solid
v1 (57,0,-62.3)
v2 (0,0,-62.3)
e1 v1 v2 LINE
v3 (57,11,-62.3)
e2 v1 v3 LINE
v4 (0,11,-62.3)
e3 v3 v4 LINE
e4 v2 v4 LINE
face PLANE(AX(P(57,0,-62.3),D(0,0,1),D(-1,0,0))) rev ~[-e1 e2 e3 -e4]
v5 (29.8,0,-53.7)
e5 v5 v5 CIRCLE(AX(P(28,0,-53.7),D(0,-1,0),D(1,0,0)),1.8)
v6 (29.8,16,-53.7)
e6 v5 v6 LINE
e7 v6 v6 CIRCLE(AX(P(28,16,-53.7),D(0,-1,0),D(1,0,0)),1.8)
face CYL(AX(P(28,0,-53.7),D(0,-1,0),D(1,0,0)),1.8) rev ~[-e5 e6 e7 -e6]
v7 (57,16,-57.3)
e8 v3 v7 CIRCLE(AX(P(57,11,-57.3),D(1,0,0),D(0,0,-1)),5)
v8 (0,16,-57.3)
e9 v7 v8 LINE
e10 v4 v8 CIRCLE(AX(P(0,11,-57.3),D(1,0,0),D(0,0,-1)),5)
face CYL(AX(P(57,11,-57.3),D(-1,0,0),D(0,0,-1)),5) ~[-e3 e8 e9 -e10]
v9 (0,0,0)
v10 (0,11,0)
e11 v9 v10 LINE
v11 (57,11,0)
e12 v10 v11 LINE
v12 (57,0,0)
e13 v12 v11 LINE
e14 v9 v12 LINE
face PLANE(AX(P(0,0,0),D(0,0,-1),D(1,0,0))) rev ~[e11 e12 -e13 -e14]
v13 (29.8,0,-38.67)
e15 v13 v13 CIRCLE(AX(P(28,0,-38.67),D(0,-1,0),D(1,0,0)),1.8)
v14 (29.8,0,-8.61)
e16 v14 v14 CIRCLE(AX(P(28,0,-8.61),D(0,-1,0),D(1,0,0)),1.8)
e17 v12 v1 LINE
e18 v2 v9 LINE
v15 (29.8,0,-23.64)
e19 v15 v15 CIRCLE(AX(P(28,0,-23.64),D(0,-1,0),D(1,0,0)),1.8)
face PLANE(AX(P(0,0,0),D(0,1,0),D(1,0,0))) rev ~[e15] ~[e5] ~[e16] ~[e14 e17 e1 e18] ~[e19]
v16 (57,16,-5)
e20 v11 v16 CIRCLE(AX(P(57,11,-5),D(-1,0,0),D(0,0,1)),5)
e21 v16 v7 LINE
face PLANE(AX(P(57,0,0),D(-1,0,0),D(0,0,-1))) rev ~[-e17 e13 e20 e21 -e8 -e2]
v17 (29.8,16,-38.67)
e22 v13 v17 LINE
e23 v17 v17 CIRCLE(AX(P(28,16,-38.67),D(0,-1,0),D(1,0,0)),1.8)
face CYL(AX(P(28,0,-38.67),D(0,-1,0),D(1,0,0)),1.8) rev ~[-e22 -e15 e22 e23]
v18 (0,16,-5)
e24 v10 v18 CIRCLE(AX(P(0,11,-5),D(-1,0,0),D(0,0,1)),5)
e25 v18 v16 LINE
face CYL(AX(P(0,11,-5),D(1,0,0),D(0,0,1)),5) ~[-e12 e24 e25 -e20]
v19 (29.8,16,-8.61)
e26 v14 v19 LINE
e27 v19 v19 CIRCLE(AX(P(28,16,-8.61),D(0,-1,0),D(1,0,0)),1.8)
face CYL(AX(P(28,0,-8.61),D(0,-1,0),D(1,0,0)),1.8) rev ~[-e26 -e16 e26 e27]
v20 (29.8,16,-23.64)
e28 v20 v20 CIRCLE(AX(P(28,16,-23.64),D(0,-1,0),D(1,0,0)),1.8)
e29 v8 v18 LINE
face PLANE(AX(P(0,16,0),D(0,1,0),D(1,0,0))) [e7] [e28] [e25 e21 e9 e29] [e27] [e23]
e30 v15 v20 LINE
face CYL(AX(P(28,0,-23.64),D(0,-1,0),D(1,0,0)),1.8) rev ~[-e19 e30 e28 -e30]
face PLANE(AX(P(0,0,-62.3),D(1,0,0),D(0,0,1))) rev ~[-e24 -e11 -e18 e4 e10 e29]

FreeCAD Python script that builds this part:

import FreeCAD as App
import Part
import Sketcher

V = App.Vector
Q = App.Units.Quantity


def edges_at(feature, points):
    """Names of the edges that pass closest to the given points."""
    edges = feature.Shape.Edges
    near = lambda p: min(range(len(edges)), key=lambda i: edges[i].distToShape(Part.Vertex(*p))[0])
    return sorted({f"Edge{near(p) + 1}" for p in points})

doc = App.newDocument("Part")
body = doc.addObject("PartDesign::Body", "Body")

sketch1 = body.newObject("Sketcher::SketchObject", "Sketch")
sketch1.AttachmentSupport = (doc.getObject("XZ_Plane"), [""])
sketch1.MapMode = "FlatFace"
sketch1.addGeometry([
    Part.LineSegment(V(0, -62, 0), V(0, 0, 0)),
    Part.LineSegment(V(0, 0, 0), V(57, 0, 0)),
    Part.LineSegment(V(57, 0, 0), V(57, -62, 0)),
    Part.LineSegment(V(57, -62, 0), V(0, -62, 0)),
], False)
sketch1.addConstraint([
    Sketcher.Constraint("Coincident", 0, 2, 1, 1),
    Sketcher.Constraint("Coincident", 1, 2, 2, 1),
    Sketcher.Constraint("Coincident", 2, 2, 3, 1),
    Sketcher.Constraint("Coincident", 3, 2, 0, 1),
    Sketcher.Constraint("Vertical", 0),
    Sketcher.Constraint("Horizontal", 1),
    Sketcher.Constraint("Vertical", 2),
    Sketcher.Constraint("Horizontal", 3),
    Sketcher.Constraint("Coincident", 0, 2, -1, 1),
    Sketcher.Constraint("DistanceX", 1, 1, 1, 2, Q("57 mm")),
    Sketcher.Constraint("DistanceY", 0, 1, 0, 2, Q("62.3 mm")),
])
pad1 = body.newObject("PartDesign::Pad", "Pad")
pad1.Profile = sketch1
pad1.Length = 16
pad1.Reversed = True
doc.recompute()

fillet = body.newObject("PartDesign::Fillet", "Fillet")
fillet.Base = (pad1, edges_at(pad1, [(28.5, 16, 0), (28.5, 16, -62.3)]))
fillet.Radius = 5

sketch2 = body.newObject("Sketcher::SketchObject", "Sketch001")
sketch2.AttachmentSupport = (doc.getObject("XZ_Plane"), [""])
sketch2.MapMode = "FlatFace"
sketch2.addGeometry([
    Part.Circle(V(28, -53.7, 0), V(0, 0, 1), 1.8),
    Part.Circle(V(28, -38.7, 0), V(0, 0, 1), 1.8),
    Part.Circle(V(28, -23.6, 0), V(0, 0, 1), 1.8),
    Part.Circle(V(28, -8.6, 0), V(0, 0, 1), 1.8),
], False)
sketch2.addConstraint([
    Sketcher.Constraint("Equal", 0, 1),
    Sketcher.Constraint("Equal", 1, 2),
    Sketcher.Constraint("Equal", 2, 3),
    Sketcher.Constraint("Vertical", 0, 3, 1, 3),
    Sketcher.Constraint("Vertical", 1, 3, 2, 3),
    Sketcher.Constraint("Vertical", 2, 3, 3, 3),
    Sketcher.Constraint("Diameter", 0, Q("3.6 mm")),
    Sketcher.Constraint("DistanceX", -1, 1, 0, 3, Q("28 mm")),
    Sketcher.Constraint("DistanceY", 3, 3, -1, 1, Q("8.61 mm")),
    Sketcher.Constraint("DistanceY", 0, 3, 1, 3, Q("15.03 mm")),
    Sketcher.Constraint("DistanceY", 1, 3, 2, 3, Q("15.03 mm")),
    Sketcher.Constraint("DistanceY", 2, 3, 3, 3, Q("15.03 mm")),
])
pocket1 = body.newObject("PartDesign::Pocket", "Pocket")
pocket1.Profile = sketch2
pocket1.Length = 45

doc.recompute()
